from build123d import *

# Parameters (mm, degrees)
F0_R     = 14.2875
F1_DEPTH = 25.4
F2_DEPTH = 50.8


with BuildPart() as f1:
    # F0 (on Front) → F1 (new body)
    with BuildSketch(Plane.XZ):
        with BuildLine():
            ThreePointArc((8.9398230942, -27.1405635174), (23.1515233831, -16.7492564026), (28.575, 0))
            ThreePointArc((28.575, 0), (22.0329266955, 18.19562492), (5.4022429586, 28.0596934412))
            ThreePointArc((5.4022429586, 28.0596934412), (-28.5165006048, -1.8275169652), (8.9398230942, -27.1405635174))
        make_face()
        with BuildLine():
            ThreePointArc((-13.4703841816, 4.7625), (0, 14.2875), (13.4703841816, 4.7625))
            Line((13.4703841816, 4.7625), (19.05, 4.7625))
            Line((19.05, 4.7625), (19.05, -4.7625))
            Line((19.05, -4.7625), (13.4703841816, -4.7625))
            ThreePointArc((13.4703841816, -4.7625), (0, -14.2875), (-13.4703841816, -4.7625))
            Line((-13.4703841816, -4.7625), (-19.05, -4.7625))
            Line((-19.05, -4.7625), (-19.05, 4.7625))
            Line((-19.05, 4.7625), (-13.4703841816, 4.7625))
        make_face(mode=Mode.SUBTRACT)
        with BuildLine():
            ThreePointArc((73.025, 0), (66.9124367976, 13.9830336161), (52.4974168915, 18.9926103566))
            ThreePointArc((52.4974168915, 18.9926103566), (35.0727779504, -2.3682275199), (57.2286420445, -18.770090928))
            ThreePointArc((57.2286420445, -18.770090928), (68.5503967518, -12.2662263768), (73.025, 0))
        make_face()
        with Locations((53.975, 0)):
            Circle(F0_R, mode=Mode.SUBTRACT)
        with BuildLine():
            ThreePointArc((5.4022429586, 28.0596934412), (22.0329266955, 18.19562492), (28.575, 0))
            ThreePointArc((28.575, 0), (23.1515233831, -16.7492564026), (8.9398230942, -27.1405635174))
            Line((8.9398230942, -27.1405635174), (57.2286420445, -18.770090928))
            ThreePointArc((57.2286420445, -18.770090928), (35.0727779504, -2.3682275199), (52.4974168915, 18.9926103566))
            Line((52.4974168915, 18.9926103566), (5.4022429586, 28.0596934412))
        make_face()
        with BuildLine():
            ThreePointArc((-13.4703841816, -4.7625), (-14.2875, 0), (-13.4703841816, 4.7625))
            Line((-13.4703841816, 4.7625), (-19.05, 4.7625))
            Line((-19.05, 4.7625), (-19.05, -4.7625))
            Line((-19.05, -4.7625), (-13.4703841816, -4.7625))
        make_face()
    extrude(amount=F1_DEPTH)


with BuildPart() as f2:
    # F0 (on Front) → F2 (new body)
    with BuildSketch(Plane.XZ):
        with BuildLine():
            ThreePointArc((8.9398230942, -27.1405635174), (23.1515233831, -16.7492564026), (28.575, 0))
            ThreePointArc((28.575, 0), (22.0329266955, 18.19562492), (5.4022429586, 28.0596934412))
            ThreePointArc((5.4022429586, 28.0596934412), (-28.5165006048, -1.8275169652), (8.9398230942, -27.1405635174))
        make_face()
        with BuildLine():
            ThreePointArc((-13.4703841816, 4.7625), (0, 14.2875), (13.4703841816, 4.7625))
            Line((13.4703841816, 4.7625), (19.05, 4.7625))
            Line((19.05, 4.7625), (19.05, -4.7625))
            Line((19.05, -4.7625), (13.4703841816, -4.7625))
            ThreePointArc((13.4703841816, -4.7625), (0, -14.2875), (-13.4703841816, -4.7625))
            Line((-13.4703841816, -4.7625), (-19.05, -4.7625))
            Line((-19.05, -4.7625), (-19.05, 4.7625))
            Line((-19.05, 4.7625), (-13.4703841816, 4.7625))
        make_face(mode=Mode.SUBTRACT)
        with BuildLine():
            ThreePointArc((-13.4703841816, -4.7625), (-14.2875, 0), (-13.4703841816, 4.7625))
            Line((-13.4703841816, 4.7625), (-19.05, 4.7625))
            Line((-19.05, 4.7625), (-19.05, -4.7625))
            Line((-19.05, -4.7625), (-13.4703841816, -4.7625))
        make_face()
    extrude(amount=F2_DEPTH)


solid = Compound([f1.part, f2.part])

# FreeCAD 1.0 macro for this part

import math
import FreeCAD as App
import Part
import Sketcher
from FreeCAD import Vector
Q = App.Units.Quantity

doc = App.newDocument("Part")
params = doc.addObject("Spreadsheet::Sheet", "Params")
for row, (alias, value) in enumerate([
    ("sketch1_radius", "0.75 in"),
    ("sketch1_diameter", "1.125 in"),
    ("sketch1_radius2", "1.125 in"),
    ("sketch1_radius3", "0.5625 in"),
    ("sketch1_height", "0.375 in"),
    ("pad1_length", "1 in"),
    ("sketch2_radius", "1.125 in"),
    ("sketch2_radius2", "0.5625 in"),
    ("sketch2_height", "0.375 in"),
    ("pad2_length", "2 in"),
], start=1):
    params.set(f"A{row}", alias)
    params.set(f"B{row}", "=" + value)
    params.setAlias(f"B{row}", alias)

body = doc.addObject("PartDesign::Body", "Body")

# Sketch on XZ plane
sketch1 = body.newObject("Sketcher::SketchObject", "Sketch")
sketch1.AttachmentSupport = (doc.getObject("XZ_Plane"), [""])
sketch1.MapMode = "FlatFace"
sketch1.addGeometry([
    Part.ArcOfCircle(Part.Circle(Vector(0, 0, 0), Vector(0, 0, 1), 28.575), math.radians(79.102367), math.radians(288.231353)),  # 0
    Part.LineSegment(Vector(8.939823, -27.140564, 0), Vector(57.228642, -18.770091, 0)),  # 1
    Part.ArcOfCircle(Part.Circle(Vector(53.975, 0, 0), Vector(0, 0, 1), 19.05), math.radians(-80.165963), math.radians(94.448525)),  # 2
    Part.LineSegment(Vector(52.497417, 18.99261, 0), Vector(5.402243, 28.059693, 0)),  # 3
    Part.ArcOfCircle(Part.Circle(Vector(0, 0, 0), Vector(0, 0, 1), 14.2875), math.radians(19.471221), math.radians(160.528779)),  # 4
    Part.LineSegment(Vector(13.470384, 4.7625, 0), Vector(19.05, 4.7625, 0)),  # 5
    Part.LineSegment(Vector(19.05, 4.7625, 0), Vector(19.05, -4.7625, 0)),  # 6
    Part.LineSegment(Vector(19.05, -4.7625, 0), Vector(13.470384, -4.7625, 0)),  # 7
    Part.ArcOfCircle(Part.Circle(Vector(0, 0, 0), Vector(0, 0, 1), 14.2875), math.radians(-160.528779), math.radians(-19.471221)),  # 8
    Part.ArcOfCircle(Part.Circle(Vector(0, 0, 0), Vector(0, 0, 1), 14.2875), math.radians(160.528779), math.radians(199.471221)),  # 9
    Part.Circle(Vector(53.975, 0, 0), Vector(0, 0, 1), 14.2875),  # 10
], False)
sketch1.addConstraint([
    Sketcher.Constraint("Coincident", 0, 2, 1, 1),
    Sketcher.Constraint("Coincident", 1, 2, 2, 1),
    Sketcher.Constraint("Coincident", 2, 2, 3, 1),
    Sketcher.Constraint("Coincident", 3, 2, 0, 1),
    Sketcher.Constraint("Coincident", 4, 1, 5, 1),
    Sketcher.Constraint("Coincident", 5, 2, 6, 1),
    Sketcher.Constraint("Coincident", 6, 2, 7, 1),
    Sketcher.Constraint("Coincident", 7, 2, 8, 2),
    Sketcher.Constraint("Coincident", 8, 1, 9, 2),
    Sketcher.Constraint("Coincident", 9, 1, 4, 2),
    Sketcher.Constraint("Horizontal", 5),
    Sketcher.Constraint("Vertical", 6),
    Sketcher.Constraint("Horizontal", 7),
    Sketcher.Constraint("Coincident", 0, 3, -1, 1),
    Sketcher.Constraint("Coincident", 4, 3, -1, 1),
    Sketcher.Constraint("Coincident", 8, 3, -1, 1),
    Sketcher.Constraint("Coincident", 9, 3, -1, 1),
    Sketcher.Constraint("Coincident", 10, 3, 2, 3),
    Sketcher.Constraint("PointOnObject", 2, 3, -1),
    Sketcher.Constraint("Radius", 2, Q("0.75 in")),
    Sketcher.Constraint("Diameter", 10, Q("1.125 in")),
    Sketcher.Constraint("Radius", 0, Q("1.125 in")),
    Sketcher.Constraint("Radius", 4, Q("0.5625 in")),
    Sketcher.Constraint("DistanceY", 6, 2, 6, 1, Q("0.375 in")),
    Sketcher.Constraint("DistanceX", -1, 1, 5, 2, Q("0.75 in")),
    Sketcher.Constraint("DistanceX", -1, 1, 2, 3, Q("2.125 in")),
    Sketcher.Constraint("DistanceY", -1, 1, 4, 1, Q("0.1875 in")),
    Sketcher.Constraint("DistanceY", 8, 1, -1, 1, Q("0.1875 in")),
    Sketcher.Constraint("DistanceY", -1, 1, 9, 1, Q("0.1875 in")),
    Sketcher.Constraint("DistanceY", 1, 2, 2, 2, Q("37.762701 mm")),
    Sketcher.Constraint("Distance", 3, Q("47.960061 mm")),
    Sketcher.Constraint("DistanceY", 1, 2, -1, 1, Q("18.770091 mm")),
    Sketcher.Constraint("DistanceX", 0, 2, 1, 2, Q("48.288819 mm")),
])
sketch1.setExpression("Constraints[19]", "Params.sketch1_radius")
sketch1.setExpression("Constraints[20]", "Params.sketch1_diameter")
sketch1.setExpression("Constraints[21]", "Params.sketch1_radius2")
sketch1.setExpression("Constraints[22]", "Params.sketch1_radius3")
sketch1.setExpression("Constraints[23]", "Params.sketch1_height")
pad1 = body.newObject("PartDesign::Pad", "Pad")
pad1.Profile = sketch1
pad1.setExpression("Length", "Params.pad1_length")
body2 = doc.addObject("PartDesign::Body", "Body001")

# Sketch on XZ plane
sketch2 = body2.newObject("Sketcher::SketchObject", "Sketch001")
sketch2.AttachmentSupport = (doc.getObject("XZ_Plane001"), [""])
sketch2.MapMode = "FlatFace"
sketch2.addGeometry([
    Part.ArcOfCircle(Part.Circle(Vector(0, 0, 0), Vector(0, 0, 1), 28.575), math.radians(-71.768647), math.radians(0)),  # 0
    Part.ArcOfCircle(Part.Circle(Vector(0, 0, 0), Vector(0, 0, 1), 28.575), math.radians(0), math.radians(79.102367)),  # 1
    Part.ArcOfCircle(Part.Circle(Vector(0, 0, 0), Vector(0, 0, 1), 28.575), math.radians(79.102367), math.radians(288.231353)),  # 2
    Part.ArcOfCircle(Part.Circle(Vector(0, 0, 0), Vector(0, 0, 1), 14.2875), math.radians(-160.528779), math.radians(-19.471221)),  # 3
    Part.ArcOfCircle(Part.Circle(Vector(0, 0, 0), Vector(0, 0, 1), 14.2875), math.radians(160.528779), math.radians(199.471221)),  # 4
    Part.ArcOfCircle(Part.Circle(Vector(0, 0, 0), Vector(0, 0, 1), 14.2875), math.radians(19.471221), math.radians(160.528779)),  # 5
    Part.LineSegment(Vector(13.470384, 4.7625, 0), Vector(19.05, 4.7625, 0)),  # 6
    Part.LineSegment(Vector(19.05, 4.7625, 0), Vector(19.05, -4.7625, 0)),  # 7
    Part.LineSegment(Vector(19.05, -4.7625, 0), Vector(13.470384, -4.7625, 0)),  # 8
], False)
sketch2.addConstraint([
    Sketcher.Constraint("Tangent", 0, 2, 1, 1),
    Sketcher.Constraint("Tangent", 1, 2, 2, 1),
    Sketcher.Constraint("Tangent", 2, 2, 0, 1),
    Sketcher.Constraint("Tangent", 3, 1, 4, 2),
    Sketcher.Constraint("Tangent", 4, 1, 5, 2),
    Sketcher.Constraint("Coincident", 5, 1, 6, 1),
    Sketcher.Constraint("Coincident", 6, 2, 7, 1),
    Sketcher.Constraint("Coincident", 7, 2, 8, 1),
    Sketcher.Constraint("Coincident", 8, 2, 3, 2),
    Sketcher.Constraint("Horizontal", 6),
    Sketcher.Constraint("Vertical", 7),
    Sketcher.Constraint("Horizontal", 8),
    Sketcher.Constraint("Coincident", 0, 3, -1, 1),
    Sketcher.Constraint("Coincident", 3, 3, -1, 1),
    Sketcher.Constraint("Coincident", 5, 3, -1, 1),
    Sketcher.Constraint("PointOnObject", 0, 2, -1),
    Sketcher.Constraint("Horizontal", 4, 1, 5, 1),
    Sketcher.Constraint("Horizontal", 3, 1, 7, 2),
    Sketcher.Constraint("Vertical", 3, 1, 4, 1),
    Sketcher.Constraint("Radius", 0, Q("1.125 in")),
    Sketcher.Constraint("Radius", 3, Q("0.5625 in")),
    Sketcher.Constraint("DistanceY", 7, 2, 7, 1, Q("0.375 in")),
    Sketcher.Constraint("DistanceX", -1, 1, 6, 2, Q("0.75 in")),
    Sketcher.Constraint("DistanceX", -1, 1, 1, 2, Q("5.402243 mm")),
    Sketcher.Constraint("DistanceX", -1, 1, 2, 2, Q("8.939823 mm")),
])
sketch2.setExpression("Constraints[19]", "Params.sketch2_radius")
sketch2.setExpression("Constraints[20]", "Params.sketch2_radius2")
sketch2.setExpression("Constraints[21]", "Params.sketch2_height")
pad2 = body2.newObject("PartDesign::Pad", "Pad001")
pad2.Profile = sketch2
pad2.setExpression("Length", "Params.pad2_length")

doc.recompute()
